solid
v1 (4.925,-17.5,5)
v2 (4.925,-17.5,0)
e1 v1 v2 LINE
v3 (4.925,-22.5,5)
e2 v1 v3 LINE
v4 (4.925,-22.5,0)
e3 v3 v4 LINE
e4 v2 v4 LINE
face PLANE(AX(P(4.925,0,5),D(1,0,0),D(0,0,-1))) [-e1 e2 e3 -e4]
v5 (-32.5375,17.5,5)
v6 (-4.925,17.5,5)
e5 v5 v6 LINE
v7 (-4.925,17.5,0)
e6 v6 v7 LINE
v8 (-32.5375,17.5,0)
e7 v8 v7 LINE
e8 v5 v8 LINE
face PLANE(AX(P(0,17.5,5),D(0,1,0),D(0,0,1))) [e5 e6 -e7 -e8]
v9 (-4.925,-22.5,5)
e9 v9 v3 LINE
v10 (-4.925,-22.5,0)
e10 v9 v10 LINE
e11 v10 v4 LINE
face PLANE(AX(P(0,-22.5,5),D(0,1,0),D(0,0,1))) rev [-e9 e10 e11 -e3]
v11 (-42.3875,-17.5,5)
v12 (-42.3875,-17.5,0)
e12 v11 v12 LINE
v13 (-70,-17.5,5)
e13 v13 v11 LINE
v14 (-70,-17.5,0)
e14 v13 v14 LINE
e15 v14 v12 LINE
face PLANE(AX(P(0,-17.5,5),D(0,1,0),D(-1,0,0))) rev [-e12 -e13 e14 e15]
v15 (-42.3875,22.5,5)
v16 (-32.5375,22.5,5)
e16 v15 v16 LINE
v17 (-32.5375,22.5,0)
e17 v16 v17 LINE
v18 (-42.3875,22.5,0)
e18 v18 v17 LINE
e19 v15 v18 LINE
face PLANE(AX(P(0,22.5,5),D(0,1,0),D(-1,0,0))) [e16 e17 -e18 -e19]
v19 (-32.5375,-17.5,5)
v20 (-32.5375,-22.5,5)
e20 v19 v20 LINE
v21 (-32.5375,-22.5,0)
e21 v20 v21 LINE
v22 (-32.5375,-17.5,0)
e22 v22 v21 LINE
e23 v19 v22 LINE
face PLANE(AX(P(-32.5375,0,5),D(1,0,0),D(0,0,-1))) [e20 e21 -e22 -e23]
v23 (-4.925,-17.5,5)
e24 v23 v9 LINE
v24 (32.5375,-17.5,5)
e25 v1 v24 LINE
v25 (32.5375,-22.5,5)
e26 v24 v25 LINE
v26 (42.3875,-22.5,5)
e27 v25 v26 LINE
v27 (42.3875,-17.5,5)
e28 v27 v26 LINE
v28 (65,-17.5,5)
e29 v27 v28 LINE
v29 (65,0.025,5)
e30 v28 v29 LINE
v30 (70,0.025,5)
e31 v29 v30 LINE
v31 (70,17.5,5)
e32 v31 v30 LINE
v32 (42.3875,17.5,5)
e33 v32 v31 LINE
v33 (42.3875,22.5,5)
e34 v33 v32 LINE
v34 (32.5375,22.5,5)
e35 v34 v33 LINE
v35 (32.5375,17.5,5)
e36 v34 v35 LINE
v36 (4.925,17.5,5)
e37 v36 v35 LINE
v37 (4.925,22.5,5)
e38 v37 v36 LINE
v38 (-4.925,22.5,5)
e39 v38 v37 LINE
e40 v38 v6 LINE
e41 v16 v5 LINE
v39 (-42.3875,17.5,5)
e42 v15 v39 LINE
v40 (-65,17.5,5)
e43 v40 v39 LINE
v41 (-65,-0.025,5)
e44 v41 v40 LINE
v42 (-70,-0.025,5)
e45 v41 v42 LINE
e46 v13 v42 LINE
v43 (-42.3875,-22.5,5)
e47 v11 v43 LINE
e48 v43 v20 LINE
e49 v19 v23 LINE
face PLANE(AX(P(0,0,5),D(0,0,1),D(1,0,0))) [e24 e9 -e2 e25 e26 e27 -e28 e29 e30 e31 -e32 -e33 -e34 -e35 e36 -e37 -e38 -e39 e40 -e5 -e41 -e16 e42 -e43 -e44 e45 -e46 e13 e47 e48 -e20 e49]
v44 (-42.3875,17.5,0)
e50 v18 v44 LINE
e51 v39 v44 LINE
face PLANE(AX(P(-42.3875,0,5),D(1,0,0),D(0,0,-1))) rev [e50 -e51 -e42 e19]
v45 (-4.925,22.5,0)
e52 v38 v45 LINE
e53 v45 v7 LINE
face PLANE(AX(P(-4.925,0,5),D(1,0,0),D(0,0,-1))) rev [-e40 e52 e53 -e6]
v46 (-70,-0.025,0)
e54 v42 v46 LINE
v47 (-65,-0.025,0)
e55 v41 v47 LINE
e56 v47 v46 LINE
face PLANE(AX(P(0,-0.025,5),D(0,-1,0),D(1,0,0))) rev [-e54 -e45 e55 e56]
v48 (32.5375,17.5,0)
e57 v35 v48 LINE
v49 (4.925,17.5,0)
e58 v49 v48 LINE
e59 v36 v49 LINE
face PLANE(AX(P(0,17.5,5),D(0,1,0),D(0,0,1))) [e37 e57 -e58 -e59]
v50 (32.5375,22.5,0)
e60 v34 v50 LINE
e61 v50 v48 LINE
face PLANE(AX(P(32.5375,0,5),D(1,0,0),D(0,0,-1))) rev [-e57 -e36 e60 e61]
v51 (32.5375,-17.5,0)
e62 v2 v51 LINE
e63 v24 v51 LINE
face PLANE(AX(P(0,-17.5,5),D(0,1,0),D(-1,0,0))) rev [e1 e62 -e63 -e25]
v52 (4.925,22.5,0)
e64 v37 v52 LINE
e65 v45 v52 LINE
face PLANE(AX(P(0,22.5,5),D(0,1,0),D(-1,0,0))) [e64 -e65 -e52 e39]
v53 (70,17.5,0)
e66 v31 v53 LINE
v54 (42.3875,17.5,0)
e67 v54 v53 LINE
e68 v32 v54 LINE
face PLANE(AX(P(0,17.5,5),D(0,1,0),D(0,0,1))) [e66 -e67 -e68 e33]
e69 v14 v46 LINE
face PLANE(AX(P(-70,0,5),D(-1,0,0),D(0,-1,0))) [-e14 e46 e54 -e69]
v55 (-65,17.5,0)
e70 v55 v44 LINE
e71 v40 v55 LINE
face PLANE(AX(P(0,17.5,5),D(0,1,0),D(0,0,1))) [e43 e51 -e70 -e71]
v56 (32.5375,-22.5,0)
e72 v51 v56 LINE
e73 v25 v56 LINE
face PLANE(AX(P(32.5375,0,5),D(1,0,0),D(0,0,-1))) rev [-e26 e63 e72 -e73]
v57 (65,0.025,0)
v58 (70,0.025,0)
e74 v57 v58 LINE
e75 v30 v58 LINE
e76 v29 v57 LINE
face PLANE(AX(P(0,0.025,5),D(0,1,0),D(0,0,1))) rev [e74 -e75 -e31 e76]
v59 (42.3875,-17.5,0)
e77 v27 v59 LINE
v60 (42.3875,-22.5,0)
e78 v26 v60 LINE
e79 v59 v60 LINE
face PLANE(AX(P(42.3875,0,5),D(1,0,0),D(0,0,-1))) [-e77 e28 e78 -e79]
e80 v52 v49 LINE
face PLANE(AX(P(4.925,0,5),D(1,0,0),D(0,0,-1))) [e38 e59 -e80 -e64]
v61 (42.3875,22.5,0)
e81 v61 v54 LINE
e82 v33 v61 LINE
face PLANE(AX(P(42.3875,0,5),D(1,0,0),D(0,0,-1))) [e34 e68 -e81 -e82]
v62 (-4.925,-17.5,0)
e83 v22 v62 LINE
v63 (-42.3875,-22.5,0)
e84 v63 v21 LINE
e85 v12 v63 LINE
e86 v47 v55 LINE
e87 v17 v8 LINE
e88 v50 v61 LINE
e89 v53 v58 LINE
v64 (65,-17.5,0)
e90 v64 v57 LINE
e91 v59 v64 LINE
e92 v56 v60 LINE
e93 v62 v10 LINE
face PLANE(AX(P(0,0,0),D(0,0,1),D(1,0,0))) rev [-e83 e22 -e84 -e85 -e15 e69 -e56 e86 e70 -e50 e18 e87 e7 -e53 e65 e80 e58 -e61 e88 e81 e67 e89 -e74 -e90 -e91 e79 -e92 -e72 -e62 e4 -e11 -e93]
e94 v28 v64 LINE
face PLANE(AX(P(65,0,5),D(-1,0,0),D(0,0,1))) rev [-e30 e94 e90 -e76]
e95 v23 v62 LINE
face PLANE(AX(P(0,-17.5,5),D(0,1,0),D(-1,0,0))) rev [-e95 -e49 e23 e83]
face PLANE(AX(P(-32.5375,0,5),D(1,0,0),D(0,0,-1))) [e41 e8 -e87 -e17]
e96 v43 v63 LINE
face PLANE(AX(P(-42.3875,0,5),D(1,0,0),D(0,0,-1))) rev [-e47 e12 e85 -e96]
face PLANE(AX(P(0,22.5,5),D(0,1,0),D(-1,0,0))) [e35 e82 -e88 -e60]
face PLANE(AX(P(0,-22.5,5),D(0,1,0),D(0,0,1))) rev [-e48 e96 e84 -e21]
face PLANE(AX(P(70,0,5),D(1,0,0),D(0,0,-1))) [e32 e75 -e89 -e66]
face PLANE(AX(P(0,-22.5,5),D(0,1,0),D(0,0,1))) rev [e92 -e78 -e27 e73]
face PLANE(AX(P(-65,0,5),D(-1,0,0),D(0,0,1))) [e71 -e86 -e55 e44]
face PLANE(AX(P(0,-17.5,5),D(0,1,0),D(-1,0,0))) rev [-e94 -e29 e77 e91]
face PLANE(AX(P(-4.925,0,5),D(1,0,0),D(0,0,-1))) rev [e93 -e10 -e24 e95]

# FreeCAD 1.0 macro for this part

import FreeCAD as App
import Part
import Sketcher
Q = App.Units.Quantity


def add_polygon(sketch, points):
    """Adds a closed chain of lines whose ends are joined by coincident constraints."""
    first, n = sketch.GeometryCount, len(points)
    for a, b in zip(points, points[1:] + points[:1]):
        sketch.addGeometry(Part.LineSegment(App.Vector(*a, 0), App.Vector(*b, 0)), False)
    for i in range(n):
        sketch.addConstraint(Sketcher.Constraint("Coincident", first + i, 2, first + (i + 1) % n, 1))

doc = App.newDocument("Part")
body = doc.addObject("PartDesign::Body", "Body")

# Sketch on XY plane
sketch1 = body.newObject("Sketcher::SketchObject", "Sketch")
sketch1.AttachmentSupport = (doc.getObject("XY_Plane"), [""])
sketch1.MapMode = "FlatFace"
add_polygon(sketch1, [(-65, 18), (-65, 0), (-70, 0), (-70, -18), (-42, -18), (-42, -22), (-33, -22), (-33, -18), (-5, -18), (-5, -22), (5, -22), (5, -18), (33, -18), (33, -22), (42, -22), (42, -18), (65, -18), (65, 0), (70, 0), (70, 18), (42, 18), (42, 22), (33, 22), (33, 18), (5, 18), (5, 22), (-5, 22), (-5, 18), (-33, 18), (-33, 22), (-42, 22), (-42, 18)])  # lines 0-31
sketch1.addConstraint(Sketcher.Constraint("Vertical", 0))
sketch1.addConstraint(Sketcher.Constraint("Horizontal", 1))
sketch1.addConstraint(Sketcher.Constraint("Vertical", 2))
sketch1.addConstraint(Sketcher.Constraint("Horizontal", 3))
sketch1.addConstraint(Sketcher.Constraint("Vertical", 4))
sketch1.addConstraint(Sketcher.Constraint("Horizontal", 5))
sketch1.addConstraint(Sketcher.Constraint("Vertical", 6))
sketch1.addConstraint(Sketcher.Constraint("Horizontal", 7))
sketch1.addConstraint(Sketcher.Constraint("Vertical", 8))
sketch1.addConstraint(Sketcher.Constraint("Horizontal", 9))
sketch1.addConstraint(Sketcher.Constraint("Vertical", 10))
sketch1.addConstraint(Sketcher.Constraint("Horizontal", 11))
sketch1.addConstraint(Sketcher.Constraint("Vertical", 12))
sketch1.addConstraint(Sketcher.Constraint("Horizontal", 13))
sketch1.addConstraint(Sketcher.Constraint("Vertical", 14))
sketch1.addConstraint(Sketcher.Constraint("Horizontal", 15))
sketch1.addConstraint(Sketcher.Constraint("Vertical", 16))
sketch1.addConstraint(Sketcher.Constraint("Horizontal", 17))
sketch1.addConstraint(Sketcher.Constraint("Vertical", 18))
sketch1.addConstraint(Sketcher.Constraint("Horizontal", 19))
sketch1.addConstraint(Sketcher.Constraint("Vertical", 20))
sketch1.addConstraint(Sketcher.Constraint("Horizontal", 21))
sketch1.addConstraint(Sketcher.Constraint("Vertical", 22))
sketch1.addConstraint(Sketcher.Constraint("Horizontal", 23))
sketch1.addConstraint(Sketcher.Constraint("Vertical", 24))
sketch1.addConstraint(Sketcher.Constraint("Horizontal", 25))
sketch1.addConstraint(Sketcher.Constraint("Vertical", 26))
sketch1.addConstraint(Sketcher.Constraint("Horizontal", 27))
sketch1.addConstraint(Sketcher.Constraint("Vertical", 28))
sketch1.addConstraint(Sketcher.Constraint("Horizontal", 29))
sketch1.addConstraint(Sketcher.Constraint("Vertical", 30))
sketch1.addConstraint(Sketcher.Constraint("Horizontal", 31))
sketch1.addConstraint(Sketcher.Constraint("Symmetric", 0, 2, 16, 2, -1, 1))
sketch1.addConstraint(Sketcher.Constraint("Symmetric", 2, 2, 18, 2, -1, 1))
sketch1.addConstraint(Sketcher.Constraint("Symmetric", 4, 2, 20, 2, -1, 1))
sketch1.addConstraint(Sketcher.Constraint("Symmetric", 6, 2, 22, 2, -1, 1))
sketch1.addConstraint(Sketcher.Constraint("Symmetric", 8, 2, 24, 2, -1, 1))
sketch1.addConstraint(Sketcher.Constraint("Symmetric", 10, 2, 26, 2, -1, 1))
sketch1.addConstraint(Sketcher.Constraint("Symmetric", 12, 2, 28, 2, -1, 1))
sketch1.addConstraint(Sketcher.Constraint("Symmetric", 14, 2, 30, 2, -1, 1))
sketch1.addConstraint(Sketcher.Constraint("Symmetric", 7, 2, 10, 2, -2))
sketch1.addConstraint(Sketcher.Constraint("Symmetric", 5, 2, 12, 2, -2))
sketch1.addConstraint(Sketcher.Constraint("Symmetric", 3, 2, 14, 2, -2))
sketch1.addConstraint(Sketcher.Constraint("Horizontal", 3, 2, 6, 2))
sketch1.addConstraint(Sketcher.Constraint("Horizontal", 5, 2, 8, 2))
sketch1.addConstraint(Sketcher.Constraint("Equal", 3, 7))
sketch1.addConstraint(Sketcher.Constraint("Equal", 5, 9))
sketch1.addConstraint(Sketcher.Constraint("Equal", 17, 4))
sketch1.addConstraint(Sketcher.Constraint("DistanceX", 1, 2, 1, 1, Q("5 mm")))
sketch1.addConstraint(Sketcher.Constraint("DistanceX", 0, 2, -1, 1, Q("65 mm")))
sketch1.addConstraint(Sketcher.Constraint("DistanceY", 15, 2, 18, 2, Q("35 mm")))
sketch1.addConstraint(Sketcher.Constraint("DistanceX", 5, 1, 5, 2, Q("9.85 mm")))
sketch1.addConstraint(Sketcher.Constraint("DistanceY", 0, 2, 0, 1, Q("17.525 mm")))
pad1 = body.newObject("PartDesign::Pad", "Pad")
pad1.Profile = sketch1
pad1.Length = 5

doc.recompute()
